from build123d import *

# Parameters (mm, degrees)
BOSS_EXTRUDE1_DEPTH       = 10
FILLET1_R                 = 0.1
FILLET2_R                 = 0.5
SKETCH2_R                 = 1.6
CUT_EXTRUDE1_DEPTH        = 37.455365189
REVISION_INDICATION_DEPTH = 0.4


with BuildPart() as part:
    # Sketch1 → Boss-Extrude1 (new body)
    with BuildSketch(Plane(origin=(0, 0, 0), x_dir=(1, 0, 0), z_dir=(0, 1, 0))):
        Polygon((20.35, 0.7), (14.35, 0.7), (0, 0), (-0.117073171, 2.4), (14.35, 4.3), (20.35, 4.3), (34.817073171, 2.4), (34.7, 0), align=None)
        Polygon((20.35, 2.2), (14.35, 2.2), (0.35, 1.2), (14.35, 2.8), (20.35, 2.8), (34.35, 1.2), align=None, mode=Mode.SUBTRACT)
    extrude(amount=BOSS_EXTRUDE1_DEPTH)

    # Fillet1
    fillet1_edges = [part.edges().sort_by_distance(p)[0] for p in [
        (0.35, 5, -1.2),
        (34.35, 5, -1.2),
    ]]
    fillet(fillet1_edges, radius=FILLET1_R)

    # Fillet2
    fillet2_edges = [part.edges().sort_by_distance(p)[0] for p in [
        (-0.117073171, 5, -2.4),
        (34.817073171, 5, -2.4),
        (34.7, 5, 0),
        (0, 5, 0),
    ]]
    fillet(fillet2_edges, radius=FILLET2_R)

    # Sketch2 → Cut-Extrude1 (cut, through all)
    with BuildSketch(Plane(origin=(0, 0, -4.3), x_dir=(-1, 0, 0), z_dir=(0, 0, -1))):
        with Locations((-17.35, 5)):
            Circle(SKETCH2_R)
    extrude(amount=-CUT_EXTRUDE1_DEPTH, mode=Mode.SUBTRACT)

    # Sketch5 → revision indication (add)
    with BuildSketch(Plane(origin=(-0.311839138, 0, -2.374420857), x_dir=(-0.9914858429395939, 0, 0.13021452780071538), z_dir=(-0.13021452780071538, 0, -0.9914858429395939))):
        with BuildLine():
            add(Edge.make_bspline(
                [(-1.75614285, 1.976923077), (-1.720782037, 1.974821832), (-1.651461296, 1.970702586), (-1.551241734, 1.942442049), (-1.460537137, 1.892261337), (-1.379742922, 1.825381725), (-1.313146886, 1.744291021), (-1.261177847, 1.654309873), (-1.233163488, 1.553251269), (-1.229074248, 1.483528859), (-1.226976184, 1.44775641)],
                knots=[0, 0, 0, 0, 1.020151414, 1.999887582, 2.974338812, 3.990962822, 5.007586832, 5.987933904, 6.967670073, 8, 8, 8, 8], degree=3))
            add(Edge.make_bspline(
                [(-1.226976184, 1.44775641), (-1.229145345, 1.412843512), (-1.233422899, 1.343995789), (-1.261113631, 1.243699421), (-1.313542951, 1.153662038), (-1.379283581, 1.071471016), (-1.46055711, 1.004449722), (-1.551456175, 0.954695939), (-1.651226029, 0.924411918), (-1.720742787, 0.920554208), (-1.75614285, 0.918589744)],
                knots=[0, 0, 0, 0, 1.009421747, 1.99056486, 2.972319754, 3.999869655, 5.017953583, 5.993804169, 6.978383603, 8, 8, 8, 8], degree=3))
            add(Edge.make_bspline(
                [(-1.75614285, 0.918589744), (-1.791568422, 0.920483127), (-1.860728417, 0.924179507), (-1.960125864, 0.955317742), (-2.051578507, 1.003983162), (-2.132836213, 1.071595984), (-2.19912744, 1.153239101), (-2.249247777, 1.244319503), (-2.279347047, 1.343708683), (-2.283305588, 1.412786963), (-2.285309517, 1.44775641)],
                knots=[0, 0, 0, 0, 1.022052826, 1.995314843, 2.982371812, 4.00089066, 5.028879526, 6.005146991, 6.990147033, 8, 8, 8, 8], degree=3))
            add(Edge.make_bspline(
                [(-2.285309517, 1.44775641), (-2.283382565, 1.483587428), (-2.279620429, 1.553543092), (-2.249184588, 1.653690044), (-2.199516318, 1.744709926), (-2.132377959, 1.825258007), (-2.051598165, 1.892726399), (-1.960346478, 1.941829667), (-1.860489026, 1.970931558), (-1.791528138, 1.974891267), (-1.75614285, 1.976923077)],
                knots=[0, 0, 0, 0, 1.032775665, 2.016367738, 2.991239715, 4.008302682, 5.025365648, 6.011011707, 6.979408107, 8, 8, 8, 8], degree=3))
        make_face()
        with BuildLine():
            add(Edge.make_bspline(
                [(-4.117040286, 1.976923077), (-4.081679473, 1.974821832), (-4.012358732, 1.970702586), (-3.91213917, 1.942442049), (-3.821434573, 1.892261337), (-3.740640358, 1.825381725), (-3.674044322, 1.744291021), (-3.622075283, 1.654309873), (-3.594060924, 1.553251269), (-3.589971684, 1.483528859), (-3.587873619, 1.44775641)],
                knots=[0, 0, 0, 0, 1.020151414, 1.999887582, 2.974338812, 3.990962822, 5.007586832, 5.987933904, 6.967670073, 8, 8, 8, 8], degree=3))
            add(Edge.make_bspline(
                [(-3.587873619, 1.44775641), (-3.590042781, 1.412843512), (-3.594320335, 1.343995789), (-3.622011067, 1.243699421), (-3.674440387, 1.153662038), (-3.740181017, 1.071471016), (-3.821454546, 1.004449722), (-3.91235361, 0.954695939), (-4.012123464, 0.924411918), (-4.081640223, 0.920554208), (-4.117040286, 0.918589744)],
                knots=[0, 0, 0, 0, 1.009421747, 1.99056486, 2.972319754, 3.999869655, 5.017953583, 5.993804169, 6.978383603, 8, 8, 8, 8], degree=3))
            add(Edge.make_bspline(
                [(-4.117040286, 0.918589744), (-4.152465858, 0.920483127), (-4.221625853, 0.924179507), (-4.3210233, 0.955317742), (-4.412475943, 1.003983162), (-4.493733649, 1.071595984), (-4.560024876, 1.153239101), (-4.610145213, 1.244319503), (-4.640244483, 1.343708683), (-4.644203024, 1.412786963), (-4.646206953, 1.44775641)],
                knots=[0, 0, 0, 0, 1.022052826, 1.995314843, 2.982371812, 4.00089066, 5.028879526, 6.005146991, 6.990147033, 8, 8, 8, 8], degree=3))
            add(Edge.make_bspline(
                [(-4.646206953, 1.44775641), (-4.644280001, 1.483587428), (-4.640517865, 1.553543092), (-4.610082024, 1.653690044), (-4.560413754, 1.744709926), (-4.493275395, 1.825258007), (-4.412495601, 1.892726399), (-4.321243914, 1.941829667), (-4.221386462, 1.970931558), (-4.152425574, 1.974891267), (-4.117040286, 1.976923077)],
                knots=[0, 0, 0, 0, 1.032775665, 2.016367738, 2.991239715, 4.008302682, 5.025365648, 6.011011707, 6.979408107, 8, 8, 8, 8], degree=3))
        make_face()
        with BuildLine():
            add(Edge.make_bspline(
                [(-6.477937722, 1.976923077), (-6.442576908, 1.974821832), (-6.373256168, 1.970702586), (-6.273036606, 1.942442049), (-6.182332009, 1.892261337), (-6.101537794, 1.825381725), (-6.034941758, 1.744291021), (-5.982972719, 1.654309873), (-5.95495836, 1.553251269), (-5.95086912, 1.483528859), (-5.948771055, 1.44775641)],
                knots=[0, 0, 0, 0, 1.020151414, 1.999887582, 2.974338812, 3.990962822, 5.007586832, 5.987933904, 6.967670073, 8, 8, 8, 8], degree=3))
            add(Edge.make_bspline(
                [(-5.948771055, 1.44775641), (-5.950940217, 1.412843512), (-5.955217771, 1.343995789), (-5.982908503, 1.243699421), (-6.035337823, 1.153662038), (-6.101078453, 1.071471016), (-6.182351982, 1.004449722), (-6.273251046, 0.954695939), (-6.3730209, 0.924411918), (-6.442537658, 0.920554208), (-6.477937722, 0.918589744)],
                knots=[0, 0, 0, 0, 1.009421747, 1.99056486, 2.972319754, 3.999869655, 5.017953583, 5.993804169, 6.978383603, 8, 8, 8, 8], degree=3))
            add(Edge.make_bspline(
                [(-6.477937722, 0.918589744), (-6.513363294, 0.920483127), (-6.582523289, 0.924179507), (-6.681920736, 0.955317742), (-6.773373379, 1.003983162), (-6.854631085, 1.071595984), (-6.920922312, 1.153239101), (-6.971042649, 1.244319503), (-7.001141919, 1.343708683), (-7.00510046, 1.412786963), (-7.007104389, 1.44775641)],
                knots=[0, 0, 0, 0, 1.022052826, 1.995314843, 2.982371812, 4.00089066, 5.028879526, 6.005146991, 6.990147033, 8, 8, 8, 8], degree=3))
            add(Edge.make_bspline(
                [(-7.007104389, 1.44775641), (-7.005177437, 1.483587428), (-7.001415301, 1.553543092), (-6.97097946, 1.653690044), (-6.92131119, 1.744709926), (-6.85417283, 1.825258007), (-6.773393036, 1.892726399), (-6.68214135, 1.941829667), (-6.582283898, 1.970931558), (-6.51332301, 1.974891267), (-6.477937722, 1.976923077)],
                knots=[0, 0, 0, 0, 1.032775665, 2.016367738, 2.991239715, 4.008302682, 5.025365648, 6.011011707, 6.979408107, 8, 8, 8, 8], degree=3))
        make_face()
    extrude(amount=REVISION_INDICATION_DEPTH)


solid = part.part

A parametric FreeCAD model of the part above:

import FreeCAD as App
import Part
import Sketcher

V = App.Vector


def edges_at(feature, points):
    """Names of the edges that pass closest to the given points."""
    edges = feature.Shape.Edges
    near = lambda p: min(range(len(edges)), key=lambda i: edges[i].distToShape(Part.Vertex(*p))[0])
    return sorted({f"Edge{near(p) + 1}" for p in points})

doc = App.newDocument("Part")
body = doc.addObject("PartDesign::Body", "Body")

# Sketch on XZ plane
sketch1 = body.newObject("Sketcher::SketchObject", "Sketch")
sketch1.AttachmentSupport = (doc.getObject("XZ_Plane"), [""])
sketch1.MapMode = "FlatFace"
sketch1.addGeometry([
    Part.LineSegment(V(14.3, -0.7, 0), V(20.4, -0.7, 0)),  # 0
    Part.LineSegment(V(20.4, -0.7, 0), V(34.7, 0, 0)),  # 1
    Part.LineSegment(V(34.7, 0, 0), V(34.8, -2.4, 0)),  # 2
    Part.LineSegment(V(34.8, -2.4, 0), V(20.4, -4.3, 0)),  # 3
    Part.LineSegment(V(20.4, -4.3, 0), V(14.3, -4.3, 0)),  # 4
    Part.LineSegment(V(14.3, -4.3, 0), V(-0.1, -2.4, 0)),  # 5
    Part.LineSegment(V(-0.1, -2.4, 0), V(0, 0, 0)),  # 6
    Part.LineSegment(V(0, 0, 0), V(14.3, -0.7, 0)),  # 7
    Part.LineSegment(V(20.4, -2.2, 0), V(14.3, -2.2, 0)),  # 8
    Part.LineSegment(V(14.3, -2.2, 0), V(0.3, -1.2, 0)),  # 9
    Part.LineSegment(V(0.3, -1.2, 0), V(14.3, -2.8, 0)),  # 10
    Part.LineSegment(V(14.3, -2.8, 0), V(20.4, -2.8, 0)),  # 11
    Part.LineSegment(V(20.4, -2.8, 0), V(34.4, -1.2, 0)),  # 12
    Part.LineSegment(V(34.4, -1.2, 0), V(20.4, -2.2, 0)),  # 13
], False)
sketch1.addConstraint([
    Sketcher.Constraint("Coincident", 0, 2, 1, 1),
    Sketcher.Constraint("Coincident", 1, 2, 2, 1),
    Sketcher.Constraint("Coincident", 2, 2, 3, 1),
    Sketcher.Constraint("Coincident", 3, 2, 4, 1),
    Sketcher.Constraint("Coincident", 4, 2, 5, 1),
    Sketcher.Constraint("Coincident", 5, 2, 6, 1),
    Sketcher.Constraint("Coincident", 6, 2, 7, 1),
    Sketcher.Constraint("Coincident", 7, 2, 0, 1),
    Sketcher.Constraint("Coincident", 8, 2, 9, 1),
    Sketcher.Constraint("Coincident", 9, 2, 10, 1),
    Sketcher.Constraint("Coincident", 10, 2, 11, 1),
    Sketcher.Constraint("Coincident", 11, 2, 12, 1),
    Sketcher.Constraint("Coincident", 12, 2, 13, 1),
    Sketcher.Constraint("Coincident", 13, 2, 8, 1),
    Sketcher.Constraint("Horizontal", 0),
    Sketcher.Constraint("Horizontal", 4),
    Sketcher.Constraint("Horizontal", 8),
    Sketcher.Constraint("Horizontal", 11),
    Sketcher.Constraint("Coincident", 6, 2, -1, 1),
    Sketcher.Constraint("PointOnObject", 1, 2, -1),
    Sketcher.Constraint("Perpendicular", 1, 2),
    Sketcher.Constraint("Perpendicular", 6, 7),
    Sketcher.Constraint("Horizontal", 2, 2, 5, 2),
    Sketcher.Constraint("Horizontal", 9, 2, 12, 2),
    Sketcher.Constraint("Vertical", 0, 2, 3, 2),
    Sketcher.Constraint("Vertical", 4, 2, 7, 2),
    Sketcher.Constraint("Vertical", 7, 2, 8, 2),
    Sketcher.Constraint("Vertical", 8, 2, 10, 2),
    Sketcher.Constraint("Vertical", 3, 2, 11, 2),
    Sketcher.Constraint("Vertical", 11, 2, 13, 2),
    Sketcher.Constraint("Equal", 3, 5),
    Sketcher.Constraint("Equal", 10, 12),
    Sketcher.Constraint("DistanceX", 0, 1, 0, 2, 6.0),
    Sketcher.Constraint("DistanceX", 9, 2, 7, 2, 14.0),
    Sketcher.Constraint("DistanceY", 8, 2, 9, 2, 1.0),
    Sketcher.Constraint("DistanceY", 0, 2, -1, 1, 0.7),
    Sketcher.Constraint("DistanceX", -1, 1, 1, 2, 34.7),
    Sketcher.Constraint("DistanceY", 2, 2, -1, 1, 2.4),
    Sketcher.Constraint("DistanceY", 3, 2, -1, 1, 4.3),
    Sketcher.Constraint("DistanceY", 8, 2, -1, 1, 2.2),
    Sketcher.Constraint("DistanceY", 10, 2, -1, 1, 2.8),
])
pad1 = body.newObject("PartDesign::Pad", "Pad")
pad1.Profile = sketch1
pad1.Length = 10
pad1.Reversed = True
doc.recompute()

fillet = body.newObject("PartDesign::Fillet", "Fillet")
fillet.Base = (pad1, edges_at(pad1, [(0.35, 5, -1.2), (34.35, 5, -1.2)]))
fillet.Radius = 0.1
doc.recompute()

fillet2 = body.newObject("PartDesign::Fillet", "Fillet001")
fillet2.Base = (fillet, edges_at(fillet, [
    (-0.117, 5, -2.4),
    (34.817, 5, -2.4),
    (34.7, 5, 0),
    (0, 5, 0),
]))
fillet2.Radius = 0.5

# Sketch on XY plane
sketch2 = body.newObject("Sketcher::SketchObject", "Sketch001")
sketch2.AttachmentSupport = (doc.getObject("XY_Plane"), [""])
sketch2.MapMode = "FlatFace"
sketch2.AttachmentOffset = App.Placement(V(0, 0, -4.3), App.Rotation())
sketch2.addGeometry(Part.Circle(V(17.4, 5, 0), V(0, 0, 1), 1.6), False)
sketch2.addConstraint([
    Sketcher.Constraint("Diameter", 0, 3.2),
    Sketcher.Constraint("DistanceY", -1, 1, 0, 3, 5.0),
    Sketcher.Constraint("DistanceX", -1, 1, 0, 3, 17.35),
])
pocket1 = body.newObject("PartDesign::Pocket", "Pocket")
pocket1.Profile = sketch2
pocket1.Type = "ThroughAll"
pocket1.Reversed = True

# Sketch on an angled plane
sketch3 = body.newObject("Sketcher::SketchObject", "Sketch002")
sketch3.Placement = App.Placement(V(-0.311839, 0, -2.374421), App.Rotation(V(-0.991485843, 0, 0.130214528), V(0, 1, 0), V(-0.130214528, 0, -0.991485843), "ZXY"))
sketch3.addGeometry([
    Part.BSplineCurve([V(-1.756143, 1.976923, 0), V(-1.720782, 1.974822, 0), V(-1.651461, 1.970703, 0), V(-1.551242, 1.942442, 0), V(-1.460537, 1.892261, 0), V(-1.379743, 1.825382, 0), V(-1.313147, 1.744291, 0), V(-1.261178, 1.65431, 0), V(-1.233163, 1.553251, 0), V(-1.229074, 1.483529, 0), V(-1.226976, 1.447756, 0)], [4, 1, 1, 1, 1, 1, 1, 1, 4], [0, 1.020151414, 1.999887582, 2.974338812, 3.990962822, 5.007586832, 5.987933904, 6.967670073, 8], False, 3, [1, 1, 1, 1, 1, 1, 1, 1, 1, 1, 1], False),  # 0
    Part.BSplineCurve([V(-2.28531, 1.447756, 0), V(-2.283383, 1.483587, 0), V(-2.27962, 1.553543, 0), V(-2.249185, 1.65369, 0), V(-2.199516, 1.74471, 0), V(-2.132378, 1.825258, 0), V(-2.051598, 1.892726, 0), V(-1.960346, 1.94183, 0), V(-1.860489, 1.970932, 0), V(-1.791528, 1.974891, 0), V(-1.756143, 1.976923, 0)], [4, 1, 1, 1, 1, 1, 1, 1, 4], [0, 1.032775665, 2.016367738, 2.991239715, 4.008302682, 5.025365648, 6.011011707, 6.979408107, 8], False, 3, [1, 1, 1, 1, 1, 1, 1, 1, 1, 1, 1], False),  # 1
    Part.BSplineCurve([V(-1.756143, 0.91859, 0), V(-1.791568, 0.920483, 0), V(-1.860728, 0.92418, 0), V(-1.960126, 0.955318, 0), V(-2.051579, 1.003983, 0), V(-2.132836, 1.071596, 0), V(-2.199127, 1.153239, 0), V(-2.249248, 1.24432, 0), V(-2.279347, 1.343709, 0), V(-2.283306, 1.412787, 0), V(-2.28531, 1.447756, 0)], [4, 1, 1, 1, 1, 1, 1, 1, 4], [0, 1.022052826, 1.995314843, 2.982371812, 4.00089066, 5.028879526, 6.005146991, 6.990147033, 8], False, 3, [1, 1, 1, 1, 1, 1, 1, 1, 1, 1, 1], False),  # 2
    Part.BSplineCurve([V(-1.226976, 1.447756, 0), V(-1.229145, 1.412844, 0), V(-1.233423, 1.343996, 0), V(-1.261114, 1.243699, 0), V(-1.313543, 1.153662, 0), V(-1.379284, 1.071471, 0), V(-1.460557, 1.00445, 0), V(-1.551456, 0.954696, 0), V(-1.651226, 0.924412, 0), V(-1.720743, 0.920554, 0), V(-1.756143, 0.91859, 0)], [4, 1, 1, 1, 1, 1, 1, 1, 4], [0, 1.009421747, 1.99056486, 2.972319754, 3.999869655, 5.017953583, 5.993804169, 6.978383603, 8], False, 3, [1, 1, 1, 1, 1, 1, 1, 1, 1, 1, 1], False),  # 3
    Part.BSplineCurve([V(-4.11704, 1.976923, 0), V(-4.081679, 1.974822, 0), V(-4.012359, 1.970703, 0), V(-3.912139, 1.942442, 0), V(-3.821435, 1.892261, 0), V(-3.74064, 1.825382, 0), V(-3.674044, 1.744291, 0), V(-3.622075, 1.65431, 0), V(-3.594061, 1.553251, 0), V(-3.589972, 1.483529, 0), V(-3.587874, 1.447756, 0)], [4, 1, 1, 1, 1, 1, 1, 1, 4], [0, 1.020151414, 1.999887582, 2.974338812, 3.990962822, 5.007586832, 5.987933904, 6.967670073, 8], False, 3, [1, 1, 1, 1, 1, 1, 1, 1, 1, 1, 1], False),  # 4
    Part.BSplineCurve([V(-4.646207, 1.447756, 0), V(-4.64428, 1.483587, 0), V(-4.640518, 1.553543, 0), V(-4.610082, 1.65369, 0), V(-4.560414, 1.74471, 0), V(-4.493275, 1.825258, 0), V(-4.412496, 1.892726, 0), V(-4.321244, 1.94183, 0), V(-4.221386, 1.970932, 0), V(-4.152426, 1.974891, 0), V(-4.11704, 1.976923, 0)], [4, 1, 1, 1, 1, 1, 1, 1, 4], [0, 1.032775665, 2.016367738, 2.991239715, 4.008302682, 5.025365648, 6.011011707, 6.979408107, 8], False, 3, [1, 1, 1, 1, 1, 1, 1, 1, 1, 1, 1], False),  # 5
    Part.BSplineCurve([V(-4.11704, 0.91859, 0), V(-4.152466, 0.920483, 0), V(-4.221626, 0.92418, 0), V(-4.321023, 0.955318, 0), V(-4.412476, 1.003983, 0), V(-4.493734, 1.071596, 0), V(-4.560025, 1.153239, 0), V(-4.610145, 1.24432, 0), V(-4.640244, 1.343709, 0), V(-4.644203, 1.412787, 0), V(-4.646207, 1.447756, 0)], [4, 1, 1, 1, 1, 1, 1, 1, 4], [0, 1.022052826, 1.995314843, 2.982371812, 4.00089066, 5.028879526, 6.005146991, 6.990147033, 8], False, 3, [1, 1, 1, 1, 1, 1, 1, 1, 1, 1, 1], False),  # 6
    Part.BSplineCurve([V(-3.587874, 1.447756, 0), V(-3.590043, 1.412844, 0), V(-3.59432, 1.343996, 0), V(-3.622011, 1.243699, 0), V(-3.67444, 1.153662, 0), V(-3.740181, 1.071471, 0), V(-3.821455, 1.00445, 0), V(-3.912354, 0.954696, 0), V(-4.012123, 0.924412, 0), V(-4.08164, 0.920554, 0), V(-4.11704, 0.91859, 0)], [4, 1, 1, 1, 1, 1, 1, 1, 4], [0, 1.009421747, 1.99056486, 2.972319754, 3.999869655, 5.017953583, 5.993804169, 6.978383603, 8], False, 3, [1, 1, 1, 1, 1, 1, 1, 1, 1, 1, 1], False),  # 7
    Part.BSplineCurve([V(-6.477938, 1.976923, 0), V(-6.442577, 1.974822, 0), V(-6.373256, 1.970703, 0), V(-6.273037, 1.942442, 0), V(-6.182332, 1.892261, 0), V(-6.101538, 1.825382, 0), V(-6.034942, 1.744291, 0), V(-5.982973, 1.65431, 0), V(-5.954958, 1.553251, 0), V(-5.950869, 1.483529, 0), V(-5.948771, 1.447756, 0)], [4, 1, 1, 1, 1, 1, 1, 1, 4], [0, 1.020151414, 1.999887582, 2.974338812, 3.990962822, 5.007586832, 5.987933904, 6.967670073, 8], False, 3, [1, 1, 1, 1, 1, 1, 1, 1, 1, 1, 1], False),  # 8
    Part.BSplineCurve([V(-7.007104, 1.447756, 0), V(-7.005177, 1.483587, 0), V(-7.001415, 1.553543, 0), V(-6.970979, 1.65369, 0), V(-6.921311, 1.74471, 0), V(-6.854173, 1.825258, 0), V(-6.773393, 1.892726, 0), V(-6.682141, 1.94183, 0), V(-6.582284, 1.970932, 0), V(-6.513323, 1.974891, 0), V(-6.477938, 1.976923, 0)], [4, 1, 1, 1, 1, 1, 1, 1, 4], [0, 1.032775665, 2.016367738, 2.991239715, 4.008302682, 5.025365648, 6.011011707, 6.979408107, 8], False, 3, [1, 1, 1, 1, 1, 1, 1, 1, 1, 1, 1], False),  # 9
    Part.BSplineCurve([V(-6.477938, 0.91859, 0), V(-6.513363, 0.920483, 0), V(-6.582523, 0.92418, 0), V(-6.681921, 0.955318, 0), V(-6.773373, 1.003983, 0), V(-6.854631, 1.071596, 0), V(-6.920922, 1.153239, 0), V(-6.971043, 1.24432, 0), V(-7.001142, 1.343709, 0), V(-7.0051, 1.412787, 0), V(-7.007104, 1.447756, 0)], [4, 1, 1, 1, 1, 1, 1, 1, 4], [0, 1.022052826, 1.995314843, 2.982371812, 4.00089066, 5.028879526, 6.005146991, 6.990147033, 8], False, 3, [1, 1, 1, 1, 1, 1, 1, 1, 1, 1, 1], False),  # 10
    Part.BSplineCurve([V(-5.948771, 1.447756, 0), V(-5.95094, 1.412844, 0), V(-5.955218, 1.343996, 0), V(-5.982909, 1.243699, 0), V(-6.035338, 1.153662, 0), V(-6.101078, 1.071471, 0), V(-6.182352, 1.00445, 0), V(-6.273251, 0.954696, 0), V(-6.373021, 0.924412, 0), V(-6.442538, 0.920554, 0), V(-6.477938, 0.91859, 0)], [4, 1, 1, 1, 1, 1, 1, 1, 4], [0, 1.009421747, 1.99056486, 2.972319754, 3.999869655, 5.017953583, 5.993804169, 6.978383603, 8], False, 3, [1, 1, 1, 1, 1, 1, 1, 1, 1, 1, 1], False),  # 11
], False)
sketch3.addConstraint([
    Sketcher.Constraint("Block", 0),
    Sketcher.Constraint("Block", 1),
    Sketcher.Constraint("Block", 2),
    Sketcher.Constraint("Block", 3),
    Sketcher.Constraint("Block", 4),
    Sketcher.Constraint("Block", 5),
    Sketcher.Constraint("Block", 6),
    Sketcher.Constraint("Block", 7),
    Sketcher.Constraint("Block", 8),
    Sketcher.Constraint("Block", 9),
    Sketcher.Constraint("Block", 10),
    Sketcher.Constraint("Block", 11),
])
pad2 = body.newObject("PartDesign::Pad", "Pad001")
pad2.Profile = sketch3
pad2.Length = 0.4

doc.recompute()
